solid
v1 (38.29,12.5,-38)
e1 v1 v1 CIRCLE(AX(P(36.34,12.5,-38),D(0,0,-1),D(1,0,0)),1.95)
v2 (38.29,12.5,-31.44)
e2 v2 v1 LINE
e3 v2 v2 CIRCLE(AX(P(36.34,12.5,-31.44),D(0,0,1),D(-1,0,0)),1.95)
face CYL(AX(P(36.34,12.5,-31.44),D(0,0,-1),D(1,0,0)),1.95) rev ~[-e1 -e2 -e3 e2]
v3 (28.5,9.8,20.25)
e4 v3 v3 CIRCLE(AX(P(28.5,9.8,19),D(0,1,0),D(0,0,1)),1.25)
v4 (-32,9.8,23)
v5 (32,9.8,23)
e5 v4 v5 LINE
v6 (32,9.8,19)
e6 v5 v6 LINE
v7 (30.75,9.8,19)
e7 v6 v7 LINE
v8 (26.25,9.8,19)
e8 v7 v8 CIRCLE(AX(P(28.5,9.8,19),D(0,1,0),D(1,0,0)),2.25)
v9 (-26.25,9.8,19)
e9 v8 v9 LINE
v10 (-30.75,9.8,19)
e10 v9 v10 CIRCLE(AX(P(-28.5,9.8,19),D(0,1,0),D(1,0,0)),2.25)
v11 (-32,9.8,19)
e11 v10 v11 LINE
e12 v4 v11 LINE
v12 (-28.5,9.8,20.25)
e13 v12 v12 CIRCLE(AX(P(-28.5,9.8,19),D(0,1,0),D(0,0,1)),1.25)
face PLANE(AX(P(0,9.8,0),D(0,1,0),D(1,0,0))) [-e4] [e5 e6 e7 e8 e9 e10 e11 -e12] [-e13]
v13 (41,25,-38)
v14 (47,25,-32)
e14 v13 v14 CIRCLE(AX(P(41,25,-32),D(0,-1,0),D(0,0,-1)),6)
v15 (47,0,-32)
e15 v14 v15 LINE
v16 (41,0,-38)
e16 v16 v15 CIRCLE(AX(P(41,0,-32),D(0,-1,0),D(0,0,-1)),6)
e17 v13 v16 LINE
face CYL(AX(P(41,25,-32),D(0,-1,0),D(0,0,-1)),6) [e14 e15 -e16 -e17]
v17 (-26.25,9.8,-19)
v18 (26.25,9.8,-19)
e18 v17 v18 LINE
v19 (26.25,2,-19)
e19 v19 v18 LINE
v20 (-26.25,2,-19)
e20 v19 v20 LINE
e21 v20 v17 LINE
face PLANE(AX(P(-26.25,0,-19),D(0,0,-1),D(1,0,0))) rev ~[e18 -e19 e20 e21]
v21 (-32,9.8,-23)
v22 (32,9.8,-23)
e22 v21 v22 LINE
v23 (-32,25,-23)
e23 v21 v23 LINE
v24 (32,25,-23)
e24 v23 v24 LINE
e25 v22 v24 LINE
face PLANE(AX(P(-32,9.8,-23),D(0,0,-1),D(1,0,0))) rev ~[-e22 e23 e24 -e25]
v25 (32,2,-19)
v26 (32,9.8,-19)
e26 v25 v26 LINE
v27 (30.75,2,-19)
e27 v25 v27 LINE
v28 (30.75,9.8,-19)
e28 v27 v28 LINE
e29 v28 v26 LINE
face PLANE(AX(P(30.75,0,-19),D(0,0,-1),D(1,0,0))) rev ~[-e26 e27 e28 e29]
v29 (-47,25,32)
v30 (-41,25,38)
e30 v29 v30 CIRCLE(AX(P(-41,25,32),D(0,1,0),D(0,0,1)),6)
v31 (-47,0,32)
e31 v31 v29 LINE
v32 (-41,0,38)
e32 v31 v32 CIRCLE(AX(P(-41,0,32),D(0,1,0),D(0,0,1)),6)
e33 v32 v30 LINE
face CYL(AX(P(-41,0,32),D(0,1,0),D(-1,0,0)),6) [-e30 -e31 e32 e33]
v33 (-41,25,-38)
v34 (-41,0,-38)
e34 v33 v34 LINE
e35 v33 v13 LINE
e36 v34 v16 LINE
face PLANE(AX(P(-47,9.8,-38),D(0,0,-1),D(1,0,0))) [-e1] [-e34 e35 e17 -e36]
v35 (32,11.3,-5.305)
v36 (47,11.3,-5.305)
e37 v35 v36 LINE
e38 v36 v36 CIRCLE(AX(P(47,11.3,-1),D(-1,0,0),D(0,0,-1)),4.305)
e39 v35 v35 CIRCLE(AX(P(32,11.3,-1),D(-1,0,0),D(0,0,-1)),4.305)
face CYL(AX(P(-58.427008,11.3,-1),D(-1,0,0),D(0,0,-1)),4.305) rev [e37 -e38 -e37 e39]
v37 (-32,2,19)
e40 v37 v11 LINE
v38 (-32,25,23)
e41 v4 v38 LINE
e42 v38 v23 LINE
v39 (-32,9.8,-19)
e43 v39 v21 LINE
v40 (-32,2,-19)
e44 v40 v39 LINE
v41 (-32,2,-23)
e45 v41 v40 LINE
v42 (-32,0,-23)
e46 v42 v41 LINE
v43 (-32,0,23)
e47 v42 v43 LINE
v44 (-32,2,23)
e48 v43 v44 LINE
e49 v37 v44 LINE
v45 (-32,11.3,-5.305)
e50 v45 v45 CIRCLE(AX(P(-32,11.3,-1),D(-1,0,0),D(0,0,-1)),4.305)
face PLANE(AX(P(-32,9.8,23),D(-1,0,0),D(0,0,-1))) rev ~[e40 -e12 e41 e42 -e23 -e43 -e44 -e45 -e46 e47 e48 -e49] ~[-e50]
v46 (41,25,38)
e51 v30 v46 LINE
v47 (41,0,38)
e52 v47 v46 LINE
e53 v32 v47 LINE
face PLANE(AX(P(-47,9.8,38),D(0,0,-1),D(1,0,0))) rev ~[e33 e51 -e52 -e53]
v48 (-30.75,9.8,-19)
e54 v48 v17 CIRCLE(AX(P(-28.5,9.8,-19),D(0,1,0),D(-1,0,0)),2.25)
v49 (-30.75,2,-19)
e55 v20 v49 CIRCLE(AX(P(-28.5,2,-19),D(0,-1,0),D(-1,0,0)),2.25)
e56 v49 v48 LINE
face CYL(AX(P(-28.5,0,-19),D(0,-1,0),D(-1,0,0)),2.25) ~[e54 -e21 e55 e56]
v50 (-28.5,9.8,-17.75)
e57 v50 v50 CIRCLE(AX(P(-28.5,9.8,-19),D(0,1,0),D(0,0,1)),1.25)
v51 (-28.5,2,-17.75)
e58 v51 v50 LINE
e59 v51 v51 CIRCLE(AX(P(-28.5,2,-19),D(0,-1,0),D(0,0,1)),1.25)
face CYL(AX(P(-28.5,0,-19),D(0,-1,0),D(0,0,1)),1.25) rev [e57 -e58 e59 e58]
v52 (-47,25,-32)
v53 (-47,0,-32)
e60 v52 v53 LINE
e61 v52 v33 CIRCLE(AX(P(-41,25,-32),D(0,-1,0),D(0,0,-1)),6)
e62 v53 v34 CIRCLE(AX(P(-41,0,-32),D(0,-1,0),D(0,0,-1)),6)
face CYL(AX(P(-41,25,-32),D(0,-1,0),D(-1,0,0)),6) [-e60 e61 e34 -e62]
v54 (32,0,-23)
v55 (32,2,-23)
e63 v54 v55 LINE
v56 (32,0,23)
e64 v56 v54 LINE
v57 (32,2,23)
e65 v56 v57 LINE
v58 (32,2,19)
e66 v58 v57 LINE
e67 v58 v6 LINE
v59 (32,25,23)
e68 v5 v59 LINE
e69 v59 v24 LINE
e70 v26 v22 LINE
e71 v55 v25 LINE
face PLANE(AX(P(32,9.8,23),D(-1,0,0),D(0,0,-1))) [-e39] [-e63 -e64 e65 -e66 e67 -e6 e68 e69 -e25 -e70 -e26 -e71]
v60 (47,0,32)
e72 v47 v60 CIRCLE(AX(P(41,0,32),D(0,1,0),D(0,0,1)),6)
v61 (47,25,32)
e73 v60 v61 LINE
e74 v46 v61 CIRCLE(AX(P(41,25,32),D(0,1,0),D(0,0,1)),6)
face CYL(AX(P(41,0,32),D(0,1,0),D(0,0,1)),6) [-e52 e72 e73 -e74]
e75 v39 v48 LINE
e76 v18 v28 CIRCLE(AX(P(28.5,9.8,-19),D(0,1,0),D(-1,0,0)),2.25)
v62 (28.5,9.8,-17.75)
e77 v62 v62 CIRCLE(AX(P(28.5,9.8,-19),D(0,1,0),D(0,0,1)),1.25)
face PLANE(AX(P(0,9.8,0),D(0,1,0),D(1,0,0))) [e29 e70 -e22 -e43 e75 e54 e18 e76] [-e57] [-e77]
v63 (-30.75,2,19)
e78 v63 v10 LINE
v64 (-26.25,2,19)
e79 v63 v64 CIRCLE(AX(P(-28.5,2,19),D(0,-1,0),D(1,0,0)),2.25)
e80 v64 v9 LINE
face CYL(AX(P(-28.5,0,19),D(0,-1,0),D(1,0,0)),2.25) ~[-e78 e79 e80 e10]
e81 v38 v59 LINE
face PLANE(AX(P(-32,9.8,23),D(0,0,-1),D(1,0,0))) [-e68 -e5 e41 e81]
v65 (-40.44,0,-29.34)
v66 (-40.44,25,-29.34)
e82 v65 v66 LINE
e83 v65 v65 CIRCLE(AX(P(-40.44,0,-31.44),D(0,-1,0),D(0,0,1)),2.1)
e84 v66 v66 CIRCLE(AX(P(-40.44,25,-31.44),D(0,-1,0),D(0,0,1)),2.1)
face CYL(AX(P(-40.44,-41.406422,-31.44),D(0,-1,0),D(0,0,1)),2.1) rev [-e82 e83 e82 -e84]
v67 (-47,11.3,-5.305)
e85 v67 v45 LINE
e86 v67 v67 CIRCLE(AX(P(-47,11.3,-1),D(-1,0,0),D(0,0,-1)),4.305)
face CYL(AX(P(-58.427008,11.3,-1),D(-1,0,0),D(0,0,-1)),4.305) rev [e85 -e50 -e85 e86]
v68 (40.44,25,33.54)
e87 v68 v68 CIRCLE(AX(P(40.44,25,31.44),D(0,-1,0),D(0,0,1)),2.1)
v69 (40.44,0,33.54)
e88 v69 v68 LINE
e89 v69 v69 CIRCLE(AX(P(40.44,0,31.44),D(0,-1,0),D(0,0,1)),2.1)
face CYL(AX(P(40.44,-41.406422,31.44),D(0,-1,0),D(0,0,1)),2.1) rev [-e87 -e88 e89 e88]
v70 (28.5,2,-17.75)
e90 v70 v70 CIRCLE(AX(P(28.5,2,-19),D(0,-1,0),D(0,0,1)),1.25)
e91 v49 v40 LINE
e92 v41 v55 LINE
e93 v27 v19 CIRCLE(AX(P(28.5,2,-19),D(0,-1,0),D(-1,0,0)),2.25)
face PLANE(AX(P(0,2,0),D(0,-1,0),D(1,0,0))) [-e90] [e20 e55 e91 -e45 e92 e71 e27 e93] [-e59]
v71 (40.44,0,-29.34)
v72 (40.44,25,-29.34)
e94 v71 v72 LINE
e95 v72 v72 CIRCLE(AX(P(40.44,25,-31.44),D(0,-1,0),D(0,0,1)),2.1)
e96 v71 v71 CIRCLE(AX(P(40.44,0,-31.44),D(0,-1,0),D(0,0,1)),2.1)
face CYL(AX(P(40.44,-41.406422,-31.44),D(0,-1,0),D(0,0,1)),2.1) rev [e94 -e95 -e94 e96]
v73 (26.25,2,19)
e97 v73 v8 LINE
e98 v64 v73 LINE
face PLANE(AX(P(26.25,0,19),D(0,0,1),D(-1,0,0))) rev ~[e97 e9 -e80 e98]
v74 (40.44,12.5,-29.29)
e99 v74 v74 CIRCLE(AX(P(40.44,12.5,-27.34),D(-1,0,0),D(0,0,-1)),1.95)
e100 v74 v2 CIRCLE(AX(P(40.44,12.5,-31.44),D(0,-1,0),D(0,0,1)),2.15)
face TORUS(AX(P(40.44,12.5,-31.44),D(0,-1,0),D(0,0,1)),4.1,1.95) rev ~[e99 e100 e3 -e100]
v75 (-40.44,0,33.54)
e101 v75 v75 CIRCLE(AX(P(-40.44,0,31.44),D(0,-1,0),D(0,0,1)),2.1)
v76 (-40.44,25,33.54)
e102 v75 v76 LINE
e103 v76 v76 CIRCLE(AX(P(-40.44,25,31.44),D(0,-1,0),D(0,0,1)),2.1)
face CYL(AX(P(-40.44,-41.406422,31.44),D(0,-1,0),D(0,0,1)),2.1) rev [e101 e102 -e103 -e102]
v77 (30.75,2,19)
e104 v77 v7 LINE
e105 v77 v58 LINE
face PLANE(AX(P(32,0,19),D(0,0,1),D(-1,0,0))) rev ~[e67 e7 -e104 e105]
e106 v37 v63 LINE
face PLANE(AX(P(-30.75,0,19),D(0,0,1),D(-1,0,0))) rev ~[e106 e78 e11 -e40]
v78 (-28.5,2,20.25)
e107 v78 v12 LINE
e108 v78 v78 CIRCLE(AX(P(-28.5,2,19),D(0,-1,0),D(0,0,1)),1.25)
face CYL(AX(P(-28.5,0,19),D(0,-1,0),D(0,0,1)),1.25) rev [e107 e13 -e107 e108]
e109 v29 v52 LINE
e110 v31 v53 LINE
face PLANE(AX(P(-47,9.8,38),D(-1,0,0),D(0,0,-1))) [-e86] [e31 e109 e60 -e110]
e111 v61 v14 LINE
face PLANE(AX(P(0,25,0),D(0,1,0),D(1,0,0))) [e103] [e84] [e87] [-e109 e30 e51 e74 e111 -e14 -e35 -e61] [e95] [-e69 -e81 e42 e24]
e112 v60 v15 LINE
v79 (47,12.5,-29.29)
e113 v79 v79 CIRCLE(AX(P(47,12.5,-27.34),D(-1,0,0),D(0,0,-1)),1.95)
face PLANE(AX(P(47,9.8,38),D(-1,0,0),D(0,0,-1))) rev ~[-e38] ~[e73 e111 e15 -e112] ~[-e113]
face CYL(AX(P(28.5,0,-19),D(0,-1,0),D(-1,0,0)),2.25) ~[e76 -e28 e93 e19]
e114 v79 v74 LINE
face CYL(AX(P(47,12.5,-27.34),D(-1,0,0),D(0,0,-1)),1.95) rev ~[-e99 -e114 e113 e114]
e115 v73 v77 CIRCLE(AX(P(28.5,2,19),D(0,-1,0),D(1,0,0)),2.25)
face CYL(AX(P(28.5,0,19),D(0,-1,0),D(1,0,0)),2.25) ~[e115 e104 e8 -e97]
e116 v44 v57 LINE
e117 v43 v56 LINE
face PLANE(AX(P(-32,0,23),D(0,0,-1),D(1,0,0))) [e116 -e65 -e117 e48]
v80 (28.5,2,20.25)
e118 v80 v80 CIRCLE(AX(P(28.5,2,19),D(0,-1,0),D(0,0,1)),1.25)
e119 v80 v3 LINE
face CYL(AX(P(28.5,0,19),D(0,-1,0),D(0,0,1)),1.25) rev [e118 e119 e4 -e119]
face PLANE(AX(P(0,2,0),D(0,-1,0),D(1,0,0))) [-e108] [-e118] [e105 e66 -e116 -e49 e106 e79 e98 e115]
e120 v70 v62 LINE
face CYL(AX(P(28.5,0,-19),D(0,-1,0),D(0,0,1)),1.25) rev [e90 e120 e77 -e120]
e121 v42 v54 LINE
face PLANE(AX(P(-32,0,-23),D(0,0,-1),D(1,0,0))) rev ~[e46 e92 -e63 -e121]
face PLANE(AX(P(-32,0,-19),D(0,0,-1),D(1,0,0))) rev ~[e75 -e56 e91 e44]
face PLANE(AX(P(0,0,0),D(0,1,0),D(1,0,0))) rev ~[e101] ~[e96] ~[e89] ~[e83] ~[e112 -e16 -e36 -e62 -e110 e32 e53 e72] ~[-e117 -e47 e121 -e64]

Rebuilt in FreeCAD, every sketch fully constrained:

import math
import FreeCAD as App
import Part
import Sketcher
Q = App.Units.Quantity


def edges_at(feature, points):
    """Names of the edges that pass closest to the given points."""
    edges = feature.Shape.Edges
    near = lambda p: min(range(len(edges)), key=lambda i: edges[i].distToShape(Part.Vertex(*p))[0])
    return sorted({f"Edge{near(p) + 1}" for p in points})

doc = App.newDocument("Part")
body = doc.addObject("PartDesign::Body", "Body")

sketch1 = body.newObject("Sketcher::SketchObject", "Sketch")
sketch1.AttachmentSupport = (doc.getObject("XZ_Plane"), [""])
sketch1.MapMode = "FlatFace"
sketch1.addGeometry([
    Part.LineSegment(App.Vector(-47, -38, 0), App.Vector(-47, 38, 0)),
    Part.LineSegment(App.Vector(-47, 38, 0), App.Vector(47, 38, 0)),
    Part.LineSegment(App.Vector(47, 38, 0), App.Vector(47, -38, 0)),
    Part.LineSegment(App.Vector(47, -38, 0), App.Vector(-47, -38, 0)),
    Part.Circle(App.Vector(-28.5, 19, 0), App.Vector(0, 0, 1), 1.2),
    Part.Circle(App.Vector(28.5, 19, 0), App.Vector(0, 0, 1), 1.2),
    Part.Circle(App.Vector(-28.5, -19, 0), App.Vector(0, 0, 1), 1.2),
    Part.LineSegment(App.Vector(-32, 19, 0), App.Vector(-32, -19, 0)),
    Part.LineSegment(App.Vector(-32, -19, 0), App.Vector(-30.8, -19, 0)),
    Part.ArcOfCircle(Part.Circle(App.Vector(-28.5, -19, 0), App.Vector(0, 0, 1), 2.2), math.radians(0), math.radians(180)),
    Part.LineSegment(App.Vector(-26.2, -19, 0), App.Vector(26.2, -19, 0)),
    Part.ArcOfCircle(Part.Circle(App.Vector(28.5, -19, 0), App.Vector(0, 0, 1), 2.2), math.radians(0), math.radians(180)),
    Part.LineSegment(App.Vector(30.8, -19, 0), App.Vector(32, -19, 0)),
    Part.LineSegment(App.Vector(32, -19, 0), App.Vector(32, 19, 0)),
    Part.LineSegment(App.Vector(32, 19, 0), App.Vector(30.8, 19, 0)),
    Part.ArcOfCircle(Part.Circle(App.Vector(28.5, 19, 0), App.Vector(0, 0, 1), 2.2), math.radians(180), math.radians(360)),
    Part.LineSegment(App.Vector(26.2, 19, 0), App.Vector(-26.2, 19, 0)),
    Part.ArcOfCircle(Part.Circle(App.Vector(-28.5, 19, 0), App.Vector(0, 0, 1), 2.2), math.radians(180), math.radians(360)),
    Part.LineSegment(App.Vector(-30.8, 19, 0), App.Vector(-32, 19, 0)),
    Part.Circle(App.Vector(28.5, -19, 0), App.Vector(0, 0, 1), 1.2),
], False)
sketch1.addConstraint([
    Sketcher.Constraint("Coincident", 0, 2, 1, 1),
    Sketcher.Constraint("Coincident", 1, 2, 2, 1),
    Sketcher.Constraint("Coincident", 2, 2, 3, 1),
    Sketcher.Constraint("Coincident", 3, 2, 0, 1),
    Sketcher.Constraint("Coincident", 7, 2, 8, 1),
    Sketcher.Constraint("Coincident", 8, 2, 9, 2),
    Sketcher.Constraint("Coincident", 9, 1, 10, 1),
    Sketcher.Constraint("Coincident", 10, 2, 11, 2),
    Sketcher.Constraint("Coincident", 11, 1, 12, 1),
    Sketcher.Constraint("Coincident", 12, 2, 13, 1),
    Sketcher.Constraint("Coincident", 13, 2, 14, 1),
    Sketcher.Constraint("Coincident", 14, 2, 15, 2),
    Sketcher.Constraint("Coincident", 15, 1, 16, 1),
    Sketcher.Constraint("Coincident", 16, 2, 17, 2),
    Sketcher.Constraint("Coincident", 17, 1, 18, 1),
    Sketcher.Constraint("Coincident", 18, 2, 7, 1),
    Sketcher.Constraint("Vertical", 0),
    Sketcher.Constraint("Horizontal", 1),
    Sketcher.Constraint("Vertical", 2),
    Sketcher.Constraint("Horizontal", 3),
    Sketcher.Constraint("Vertical", 7),
    Sketcher.Constraint("Horizontal", 8),
    Sketcher.Constraint("Horizontal", 10),
    Sketcher.Constraint("Horizontal", 12),
    Sketcher.Constraint("Vertical", 13),
    Sketcher.Constraint("Horizontal", 14),
    Sketcher.Constraint("Horizontal", 16),
    Sketcher.Constraint("Horizontal", 18),
    Sketcher.Constraint("Coincident", 9, 3, 6, 3),
    Sketcher.Constraint("Coincident", 15, 3, 5, 3),
    Sketcher.Constraint("Coincident", 17, 3, 4, 3),
    Sketcher.Constraint("Coincident", 19, 3, 11, 3),
    Sketcher.Constraint("Equal", 4, 5),
    Sketcher.Constraint("Equal", 5, 6),
    Sketcher.Constraint("Equal", 9, 11),
    Sketcher.Constraint("Equal", 11, 15),
    Sketcher.Constraint("Equal", 15, 17),
    Sketcher.Constraint("Equal", 6, 19),
    Sketcher.Constraint("Symmetric", 5, 3, 6, 3, -1, 1),
    Sketcher.Constraint("Symmetric", 4, 3, 11, 3, -1, 1),
    Sketcher.Constraint("Symmetric", 0, 2, 2, 2, -1, 1),
    Sketcher.Constraint("Symmetric", 7, 2, 13, 2, -1, 1),
    Sketcher.Constraint("Symmetric", 4, 3, 5, 3, -2),
    Sketcher.Constraint("Horizontal", 19, 3, 7, 2),
    Sketcher.Constraint("Horizontal", 8, 2, 9, 1),
    Sketcher.Constraint("Horizontal", 10, 2, 11, 1),
    Sketcher.Constraint("Horizontal", 14, 2, 15, 1),
    Sketcher.Constraint("Horizontal", 16, 2, 17, 1),
    Sketcher.Constraint("Diameter", 4, Q("2.5 mm")),
    Sketcher.Constraint("DistanceX", 1, 1, 1, 2, Q("94 mm")),
    Sketcher.Constraint("DistanceY", 0, 1, 0, 2, Q("76 mm")),
    Sketcher.Constraint("DistanceY", 7, 2, 7, 1, Q("38 mm")),
    Sketcher.Constraint("Radius", 9, Q("2.25 mm")),
    Sketcher.Constraint("DistanceX", 10, 1, 10, 2, Q("52.5 mm")),
    Sketcher.Constraint("DistanceX", 7, 2, -1, 1, Q("32 mm")),
])
pad1 = body.newObject("PartDesign::Pad", "Pad")
pad1.Profile = sketch1
pad1.Length = 9.8
pad1.Reversed = True

sketch2 = body.newObject("Sketcher::SketchObject", "Sketch001")
sketch2.AttachmentSupport = (doc.getObject("XZ_Plane"), [""])
sketch2.MapMode = "FlatFace"
sketch2.AttachmentOffset = App.Placement(App.Vector(0, 0, -9.8), App.Rotation())
sketch2.addGeometry([
    Part.LineSegment(App.Vector(-47, -38, 0), App.Vector(-47, 38, 0)),
    Part.LineSegment(App.Vector(-47, 38, 0), App.Vector(47, 38, 0)),
    Part.LineSegment(App.Vector(47, 38, 0), App.Vector(47, -38, 0)),
    Part.LineSegment(App.Vector(47, -38, 0), App.Vector(-47, -38, 0)),
    Part.LineSegment(App.Vector(32, 23, 0), App.Vector(-32, 23, 0)),
    Part.LineSegment(App.Vector(-32, 23, 0), App.Vector(-32, -23, 0)),
    Part.LineSegment(App.Vector(-32, -23, 0), App.Vector(32, -23, 0)),
    Part.LineSegment(App.Vector(32, -23, 0), App.Vector(32, 23, 0)),
], False)
sketch2.addConstraint([
    Sketcher.Constraint("Coincident", 0, 2, 1, 1),
    Sketcher.Constraint("Coincident", 1, 2, 2, 1),
    Sketcher.Constraint("Coincident", 2, 2, 3, 1),
    Sketcher.Constraint("Coincident", 3, 2, 0, 1),
    Sketcher.Constraint("Coincident", 4, 2, 5, 1),
    Sketcher.Constraint("Coincident", 5, 2, 6, 1),
    Sketcher.Constraint("Coincident", 6, 2, 7, 1),
    Sketcher.Constraint("Coincident", 7, 2, 4, 1),
    Sketcher.Constraint("Vertical", 0),
    Sketcher.Constraint("Horizontal", 1),
    Sketcher.Constraint("Vertical", 2),
    Sketcher.Constraint("Horizontal", 3),
    Sketcher.Constraint("Horizontal", 4),
    Sketcher.Constraint("Vertical", 5),
    Sketcher.Constraint("Horizontal", 6),
    Sketcher.Constraint("Vertical", 7),
    Sketcher.Constraint("Symmetric", 0, 2, 2, 2, -1, 1),
    Sketcher.Constraint("Symmetric", 4, 2, 6, 2, -1, 1),
    Sketcher.Constraint("DistanceX", 1, 1, 1, 2, Q("94 mm")),
    Sketcher.Constraint("DistanceX", 4, 2, 4, 1, Q("64 mm")),
    Sketcher.Constraint("DistanceY", 0, 1, 0, 2, Q("76 mm")),
    Sketcher.Constraint("DistanceY", 5, 2, 5, 1, Q("46 mm")),
])
pad2 = body.newObject("PartDesign::Pad", "Pad001")
pad2.Profile = sketch2
pad2.Length = 15.2
pad2.Reversed = True

sketch3 = body.newObject("Sketcher::SketchObject", "Sketch002")
sketch3.AttachmentSupport = (doc.getObject("XZ_Plane"), [""])
sketch3.MapMode = "FlatFace"
sketch3.addGeometry([
    Part.LineSegment(App.Vector(-32, 23, 0), App.Vector(-32, -23, 0)),
    Part.LineSegment(App.Vector(-32, -23, 0), App.Vector(32, -23, 0)),
    Part.LineSegment(App.Vector(32, -23, 0), App.Vector(32, 23, 0)),
    Part.LineSegment(App.Vector(32, 23, 0), App.Vector(-32, 23, 0)),
], False)
sketch3.addConstraint([
    Sketcher.Constraint("Coincident", 0, 2, 1, 1),
    Sketcher.Constraint("Coincident", 1, 2, 2, 1),
    Sketcher.Constraint("Coincident", 2, 2, 3, 1),
    Sketcher.Constraint("Coincident", 3, 2, 0, 1),
    Sketcher.Constraint("Vertical", 0),
    Sketcher.Constraint("Horizontal", 1),
    Sketcher.Constraint("Vertical", 2),
    Sketcher.Constraint("Horizontal", 3),
    Sketcher.Constraint("Symmetric", 0, 2, 2, 2, -1, 1),
    Sketcher.Constraint("DistanceX", 1, 1, 1, 2, Q("64 mm")),
    Sketcher.Constraint("DistanceY", 0, 2, 0, 1, Q("46 mm")),
])
pocket1 = body.newObject("PartDesign::Pocket", "Pocket")
pocket1.Profile = sketch3
pocket1.Length = 2

sketch4 = body.newObject("Sketcher::SketchObject", "Sketch003")
sketch4.AttachmentSupport = (doc.getObject("YZ_Plane"), [""])
sketch4.MapMode = "FlatFace"
sketch4.AttachmentOffset = App.Placement(App.Vector(0, 0, 47), App.Rotation())
sketch4.addGeometry(Part.Circle(App.Vector(11.3, -1, 0), App.Vector(0, 0, 1), 4.3), False)
sketch4.addConstraint([
    Sketcher.Constraint("Diameter", 0, Q("8.61 mm")),
    Sketcher.Constraint("DistanceY", 0, 3, -1, 1, Q("1 mm")),
    Sketcher.Constraint("DistanceX", -1, 1, 0, 3, Q("11.3 mm")),
])
pocket2 = body.newObject("PartDesign::Pocket", "Pocket001")
pocket2.Profile = sketch4
pocket2.Type = "ThroughAll"
pocket2.Midplane = True

sketch5 = body.newObject("Sketcher::SketchObject", "Sketch004")
sketch5.AttachmentSupport = (doc.getObject("XZ_Plane"), [""])
sketch5.MapMode = "FlatFace"
sketch5.AttachmentOffset = App.Placement(App.Vector(0, 0, -25), App.Rotation())
sketch5.addGeometry([
    Part.Circle(App.Vector(-40.4, -31.4, 0), App.Vector(0, 0, 1), 2.1),
    Part.Circle(App.Vector(40.4, -31.4, 0), App.Vector(0, 0, 1), 2.1),
    Part.Circle(App.Vector(40.4, 31.4, 0), App.Vector(0, 0, 1), 2.1),
    Part.Circle(App.Vector(-40.4, 31.4, 0), App.Vector(0, 0, 1), 2.1),
], False)
sketch5.addConstraint([
    Sketcher.Constraint("Equal", 0, 1),
    Sketcher.Constraint("Equal", 1, 2),
    Sketcher.Constraint("Equal", 2, 3),
    Sketcher.Constraint("Symmetric", 0, 3, 2, 3, -1, 1),
    Sketcher.Constraint("Symmetric", 1, 3, 3, 3, -1, 1),
    Sketcher.Constraint("Symmetric", 0, 3, 1, 3, -2),
    Sketcher.Constraint("Diameter", 0, Q("4.2 mm")),
    Sketcher.Constraint("DistanceX", 0, 3, -1, 1, Q("40.44 mm")),
    Sketcher.Constraint("DistanceY", 0, 3, -1, 1, Q("31.44 mm")),
])
pocket3 = body.newObject("PartDesign::Pocket", "Pocket002")
pocket3.Profile = sketch5
pocket3.Type = "ThroughAll"
pocket3.Midplane = True
doc.recompute()

fillet = body.newObject("PartDesign::Fillet", "Fillet")
fillet.Base = (pocket3, edges_at(pocket3, [
    (-47, 12.5, 38),
    (-47, 12.5, -38),
    (47, 12.5, -38),
    (47, 12.5, 38),
]))
fillet.Radius = 6

sketch6 = body.newObject("Sketcher::SketchObject", "Sketch005")
sketch6.AttachmentSupport = (doc.getObject("YZ_Plane"), [""])
sketch6.MapMode = "FlatFace"
sketch6.AttachmentOffset = App.Placement(App.Vector(0, 0, 47), App.Rotation())
sketch6.addGeometry(Part.Circle(App.Vector(12.5, -27.3, 0), App.Vector(0, 0, 1), 1.9), False)
sketch6.addConstraint([
    Sketcher.Constraint("Diameter", 0, Q("3.9 mm")),
    Sketcher.Constraint("DistanceX", -1, 1, 0, 3, Q("12.5 mm")),
    Sketcher.Constraint("DistanceY", 0, 3, -1, 1, Q("27.34 mm")),
])

sketch7 = body.newObject("Sketcher::SketchObject", "Sketch006")
sketch7.AttachmentSupport = (doc.getObject("XZ_Plane"), [""])
sketch7.MapMode = "FlatFace"
sketch7.AttachmentOffset = App.Placement(App.Vector(0, 0, -12.5), App.Rotation())
sketch7.addGeometry([
    Part.LineSegment(App.Vector(47, -27.3, 0), App.Vector(40.4, -27.3, 0)),
    Part.ArcOfCircle(Part.Circle(App.Vector(40.4, -31.4, 0), App.Vector(0, 0, 1), 4.1), math.radians(90), math.radians(180)),
    Part.LineSegment(App.Vector(36.3, -31.4, 0), App.Vector(36.3, -38, 0)),
], False)
sketch7.addConstraint([
    Sketcher.Constraint("Tangent", 0, 2, 1, 1),
    Sketcher.Constraint("Tangent", 1, 2, 2, 1),
    Sketcher.Constraint("Horizontal", 0),
    Sketcher.Constraint("Vertical", 2),
    Sketcher.Constraint("Equal", 0, 2),
    Sketcher.Constraint("Radius", 1, Q("4.1 mm")),
    Sketcher.Constraint("DistanceX", -1, 1, 0, 1, Q("47 mm")),
    Sketcher.Constraint("DistanceY", 2, 2, -1, 1, Q("38 mm")),
    Sketcher.Constraint("DistanceX", 0, 2, 0, 1, Q("6.56 mm")),
])
doc.recompute()

subtractivepipe = body.newObject("PartDesign::SubtractivePipe", "SubtractivePipe")
subtractivepipe.Profile = sketch6
subtractivepipe.Spine = (sketch7, ["Edge1", "Edge2", "Edge3"])

doc.recompute()
